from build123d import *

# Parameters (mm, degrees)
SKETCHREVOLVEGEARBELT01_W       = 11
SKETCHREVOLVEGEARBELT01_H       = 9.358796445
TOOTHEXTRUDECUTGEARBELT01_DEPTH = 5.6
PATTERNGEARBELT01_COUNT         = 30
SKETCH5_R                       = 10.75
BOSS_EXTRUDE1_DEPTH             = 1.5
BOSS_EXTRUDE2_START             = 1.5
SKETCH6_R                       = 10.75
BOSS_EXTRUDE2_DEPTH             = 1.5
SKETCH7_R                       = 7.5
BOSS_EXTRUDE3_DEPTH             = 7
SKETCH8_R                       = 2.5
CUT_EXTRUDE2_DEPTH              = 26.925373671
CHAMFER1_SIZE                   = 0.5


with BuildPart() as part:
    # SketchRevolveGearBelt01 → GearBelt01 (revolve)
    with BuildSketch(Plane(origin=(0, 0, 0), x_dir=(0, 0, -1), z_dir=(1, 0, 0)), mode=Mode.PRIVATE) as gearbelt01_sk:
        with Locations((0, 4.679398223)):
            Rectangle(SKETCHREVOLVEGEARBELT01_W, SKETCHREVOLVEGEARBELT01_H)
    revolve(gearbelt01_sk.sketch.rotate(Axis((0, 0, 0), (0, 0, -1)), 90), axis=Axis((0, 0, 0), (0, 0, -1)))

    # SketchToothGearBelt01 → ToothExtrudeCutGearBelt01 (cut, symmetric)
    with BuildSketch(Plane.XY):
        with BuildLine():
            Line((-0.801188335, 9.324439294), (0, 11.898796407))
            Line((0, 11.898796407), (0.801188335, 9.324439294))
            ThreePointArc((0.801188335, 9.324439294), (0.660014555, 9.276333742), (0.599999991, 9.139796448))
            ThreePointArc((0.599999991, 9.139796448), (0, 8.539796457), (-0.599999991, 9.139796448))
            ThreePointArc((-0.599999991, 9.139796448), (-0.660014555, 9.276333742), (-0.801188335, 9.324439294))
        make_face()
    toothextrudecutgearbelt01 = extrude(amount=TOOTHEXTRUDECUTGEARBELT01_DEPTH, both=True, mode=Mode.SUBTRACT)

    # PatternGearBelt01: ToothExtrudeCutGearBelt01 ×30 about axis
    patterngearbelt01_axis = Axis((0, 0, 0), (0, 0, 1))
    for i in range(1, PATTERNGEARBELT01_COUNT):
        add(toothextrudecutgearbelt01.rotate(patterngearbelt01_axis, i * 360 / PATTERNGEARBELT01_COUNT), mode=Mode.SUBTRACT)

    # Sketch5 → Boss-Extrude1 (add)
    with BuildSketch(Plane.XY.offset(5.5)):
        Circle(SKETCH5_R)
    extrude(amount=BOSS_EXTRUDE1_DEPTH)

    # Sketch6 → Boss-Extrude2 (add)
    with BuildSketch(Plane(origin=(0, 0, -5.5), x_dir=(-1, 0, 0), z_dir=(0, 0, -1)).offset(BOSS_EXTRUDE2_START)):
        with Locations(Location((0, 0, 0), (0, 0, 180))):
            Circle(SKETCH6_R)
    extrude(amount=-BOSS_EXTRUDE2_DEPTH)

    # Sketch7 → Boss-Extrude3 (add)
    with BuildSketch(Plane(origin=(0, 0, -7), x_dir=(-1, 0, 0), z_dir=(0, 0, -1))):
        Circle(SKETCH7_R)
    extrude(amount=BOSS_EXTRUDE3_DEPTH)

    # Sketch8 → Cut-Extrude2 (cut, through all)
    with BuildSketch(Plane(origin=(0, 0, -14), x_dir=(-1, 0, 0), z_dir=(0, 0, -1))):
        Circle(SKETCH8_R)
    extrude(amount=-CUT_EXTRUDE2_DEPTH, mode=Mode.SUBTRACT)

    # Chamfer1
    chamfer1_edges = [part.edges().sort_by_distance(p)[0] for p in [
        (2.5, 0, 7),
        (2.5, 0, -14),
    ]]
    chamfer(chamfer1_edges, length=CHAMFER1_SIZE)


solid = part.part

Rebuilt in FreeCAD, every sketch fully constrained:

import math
import FreeCAD as App
import Part
import Sketcher
Q = App.Units.Quantity


def edges_at(feature, points):
    """Names of the edges that pass closest to the given points."""
    edges = feature.Shape.Edges
    near = lambda p: min(range(len(edges)), key=lambda i: edges[i].distToShape(Part.Vertex(*p))[0])
    return sorted({f"Edge{near(p) + 1}" for p in points})


def add_polygon(sketch, points):
    """Adds a closed chain of lines whose ends are joined by coincident constraints."""
    first, n = sketch.GeometryCount, len(points)
    for a, b in zip(points, points[1:] + points[:1]):
        sketch.addGeometry(Part.LineSegment(App.Vector(*a, 0), App.Vector(*b, 0)), False)
    for i in range(n):
        sketch.addConstraint(Sketcher.Constraint("Coincident", first + i, 2, first + (i + 1) % n, 1))

doc = App.newDocument("Part")
params = doc.addObject("Spreadsheet::Sheet", "Params")
for row, (alias, value) in enumerate([
    ("sketch1_height", "11 mm"),
    ("revolution_angle", "360 deg"),
    ("sketch2_radius", "0.6 mm"),
    ("pocket1_length", "11.2 mm"),
    ("sketch3_diameter", "21.5 mm"),
    ("pad1_length", "1.5 mm"),
    ("sketch4_diameter", "21.5 mm"),
    ("pad2_length", "1.5 mm"),
    ("sketch5_diameter", "15 mm"),
    ("pad3_length", "7 mm"),
    ("sketch6_diameter", "5 mm"),
    ("chamfer_size", "0.5 mm"),
], start=1):
    params.set(f"A{row}", alias)
    params.set(f"B{row}", "=" + value)
    params.setAlias(f"B{row}", alias)

body = doc.addObject("PartDesign::Body", "Body")

# Sketch on YZ plane
sketch1 = body.newObject("Sketcher::SketchObject", "Sketch")
sketch1.AttachmentSupport = (doc.getObject("YZ_Plane"), [""])
sketch1.MapMode = "FlatFace"
add_polygon(sketch1, [(9.358796, 5.5), (0, 5.5), (0, -5.5), (9.358796, -5.5)])  # lines 0-3
sketch1.addConstraint([
    Sketcher.Constraint("Horizontal", 0),
    Sketcher.Constraint("Vertical", 1),
    Sketcher.Constraint("Horizontal", 2),
    Sketcher.Constraint("Vertical", 3),
    Sketcher.Constraint("Symmetric", 0, 2, 1, 2, -1, 1),
    Sketcher.Constraint("DistanceY", 1, 2, 1, 1, Q("11 mm")),
    Sketcher.Constraint("DistanceX", 0, 2, 0, 1, Q("9.358796 mm")),
])
sketch1.setExpression("Constraints[9]", "Params.sketch1_height")
revolution = body.newObject("PartDesign::Revolution", "Revolution")
revolution.Profile = sketch1
revolution.ReferenceAxis = (sketch1, ["V_Axis"])
revolution.setExpression("Angle", "Params.revolution_angle")

# Sketch on XY plane
sketch2 = body.newObject("Sketcher::SketchObject", "Sketch001")
sketch2.AttachmentSupport = (doc.getObject("XY_Plane"), [""])
sketch2.MapMode = "FlatFace"
sketch2.addGeometry([
    Part.LineSegment(App.Vector(0, 11.898796, 0), App.Vector(-0.801188, 9.324439, 0)),  # 0
    Part.ArcOfCircle(Part.Circle(App.Vector(-0.785323, 9.139796, 0), App.Vector(0, 0, 1), 0.185323), math.radians(0), math.radians(94.910991)),  # 1
    Part.ArcOfCircle(Part.Circle(App.Vector(0, 9.139796, 0), App.Vector(0, 0, 1), 0.6), math.radians(180), math.radians(360)),  # 2
    Part.ArcOfCircle(Part.Circle(App.Vector(0.785323, 9.139796, 0), App.Vector(0, 0, 1), 0.185323), math.radians(85.089009), math.radians(180)),  # 3
    Part.LineSegment(App.Vector(0.801188, 9.324439, 0), App.Vector(0, 11.898796, 0)),  # 4
], False)
sketch2.addConstraint([
    Sketcher.Constraint("Coincident", 0, 2, 1, 2),
    Sketcher.Constraint("Tangent", 1, 1, 2, 1),
    Sketcher.Constraint("Tangent", 2, 2, 3, 2),
    Sketcher.Constraint("Coincident", 3, 1, 4, 1),
    Sketcher.Constraint("Coincident", 4, 2, 0, 1),
    Sketcher.Constraint("Equal", 1, 3),
    Sketcher.Constraint("Symmetric", 1, 3, 3, 3, -2),
    Sketcher.Constraint("PointOnObject", 4, 2, -2),
    Sketcher.Constraint("Horizontal", 1, 3, 2, 3),
    Sketcher.Constraint("Horizontal", 0, 2, 3, 1),
    Sketcher.Constraint("Radius", 2, Q("0.6 mm")),
    Sketcher.Constraint("Radius", 1, Q("0.185323 mm")),
    Sketcher.Constraint("DistanceY", 2, 3, 4, 2, Q("2.759 mm")),
    Sketcher.Constraint("Distance", 0, Q("2.696149 mm")),
    Sketcher.Constraint("DistanceY", -1, 1, 0, 2, Q("9.324439 mm")),
])
sketch2.setExpression("Constraints[10]", "Params.sketch2_radius")
pocket1 = body.newObject("PartDesign::Pocket", "Pocket")
pocket1.Profile = sketch2
pocket1.setExpression("Length", "Params.pocket1_length")
pocket1.Midplane = True
doc.recompute()

polarpattern = body.newObject("PartDesign::PolarPattern", "PolarPattern")
polarpattern.Originals = [pocket1]
polarpattern.Axis = (doc.getObject("Z_Axis"), [""])
polarpattern.Angle = 360
polarpattern.Occurrences = 30
body.Tip = polarpattern

# Sketch on XY plane
sketch3 = body.newObject("Sketcher::SketchObject", "Sketch002")
sketch3.AttachmentSupport = (doc.getObject("XY_Plane"), [""])
sketch3.MapMode = "FlatFace"
sketch3.AttachmentOffset = App.Placement(App.Vector(0, 0, 5.5), App.Rotation())
sketch3.addGeometry(Part.Circle(App.Vector(0, 0, 0), App.Vector(0, 0, 1), 10.75), False)
sketch3.addConstraint([
    Sketcher.Constraint("Coincident", 0, 3, -1, 1),
    Sketcher.Constraint("Diameter", 0, Q("21.5 mm")),
])
sketch3.setExpression("Constraints[1]", "Params.sketch3_diameter")
pad1 = body.newObject("PartDesign::Pad", "Pad")
pad1.Profile = sketch3
pad1.setExpression("Length", "Params.pad1_length")

# Sketch on XY plane
sketch4 = body.newObject("Sketcher::SketchObject", "Sketch003")
sketch4.AttachmentSupport = (doc.getObject("XY_Plane"), [""])
sketch4.MapMode = "FlatFace"
sketch4.AttachmentOffset = App.Placement(App.Vector(0, 0, -7), App.Rotation())
sketch4.addGeometry(Part.Circle(App.Vector(0, 0, 0), App.Vector(0, 0, 1), 10.75), False)
sketch4.addConstraint([
    Sketcher.Constraint("Coincident", 0, 3, -1, 1),
    Sketcher.Constraint("Diameter", 0, Q("21.5 mm")),
])
sketch4.setExpression("Constraints[1]", "Params.sketch4_diameter")
pad2 = body.newObject("PartDesign::Pad", "Pad001")
pad2.Profile = sketch4
pad2.setExpression("Length", "Params.pad2_length")

# Sketch on XY plane
sketch5 = body.newObject("Sketcher::SketchObject", "Sketch004")
sketch5.AttachmentSupport = (doc.getObject("XY_Plane"), [""])
sketch5.MapMode = "FlatFace"
sketch5.AttachmentOffset = App.Placement(App.Vector(0, 0, -7), App.Rotation())
sketch5.addGeometry(Part.Circle(App.Vector(0, 0, 0), App.Vector(0, 0, 1), 7.5), False)
sketch5.addConstraint([
    Sketcher.Constraint("Coincident", 0, 3, -1, 1),
    Sketcher.Constraint("Diameter", 0, Q("15 mm")),
])
sketch5.setExpression("Constraints[1]", "Params.sketch5_diameter")
pad3 = body.newObject("PartDesign::Pad", "Pad002")
pad3.Profile = sketch5
pad3.setExpression("Length", "Params.pad3_length")
pad3.Reversed = True

# Sketch on XY plane
sketch6 = body.newObject("Sketcher::SketchObject", "Sketch005")
sketch6.AttachmentSupport = (doc.getObject("XY_Plane"), [""])
sketch6.MapMode = "FlatFace"
sketch6.AttachmentOffset = App.Placement(App.Vector(0, 0, -14), App.Rotation())
sketch6.addGeometry(Part.Circle(App.Vector(0, 0, 0), App.Vector(0, 0, 1), 2.5), False)
sketch6.addConstraint([
    Sketcher.Constraint("Coincident", 0, 3, -1, 1),
    Sketcher.Constraint("Diameter", 0, Q("5 mm")),
])
sketch6.setExpression("Constraints[1]", "Params.sketch6_diameter")
pocket2 = body.newObject("PartDesign::Pocket", "Pocket001")
pocket2.Profile = sketch6
pocket2.Type = "ThroughAll"
pocket2.Reversed = True
doc.recompute()

chamfer = body.newObject("PartDesign::Chamfer", "Chamfer")
chamfer.Base = (pocket2, edges_at(pocket2, [(2.5, 0, 7), (2.5, 0, -14)]))
chamfer.setExpression("Size", "Params.chamfer_size")

doc.recompute()
